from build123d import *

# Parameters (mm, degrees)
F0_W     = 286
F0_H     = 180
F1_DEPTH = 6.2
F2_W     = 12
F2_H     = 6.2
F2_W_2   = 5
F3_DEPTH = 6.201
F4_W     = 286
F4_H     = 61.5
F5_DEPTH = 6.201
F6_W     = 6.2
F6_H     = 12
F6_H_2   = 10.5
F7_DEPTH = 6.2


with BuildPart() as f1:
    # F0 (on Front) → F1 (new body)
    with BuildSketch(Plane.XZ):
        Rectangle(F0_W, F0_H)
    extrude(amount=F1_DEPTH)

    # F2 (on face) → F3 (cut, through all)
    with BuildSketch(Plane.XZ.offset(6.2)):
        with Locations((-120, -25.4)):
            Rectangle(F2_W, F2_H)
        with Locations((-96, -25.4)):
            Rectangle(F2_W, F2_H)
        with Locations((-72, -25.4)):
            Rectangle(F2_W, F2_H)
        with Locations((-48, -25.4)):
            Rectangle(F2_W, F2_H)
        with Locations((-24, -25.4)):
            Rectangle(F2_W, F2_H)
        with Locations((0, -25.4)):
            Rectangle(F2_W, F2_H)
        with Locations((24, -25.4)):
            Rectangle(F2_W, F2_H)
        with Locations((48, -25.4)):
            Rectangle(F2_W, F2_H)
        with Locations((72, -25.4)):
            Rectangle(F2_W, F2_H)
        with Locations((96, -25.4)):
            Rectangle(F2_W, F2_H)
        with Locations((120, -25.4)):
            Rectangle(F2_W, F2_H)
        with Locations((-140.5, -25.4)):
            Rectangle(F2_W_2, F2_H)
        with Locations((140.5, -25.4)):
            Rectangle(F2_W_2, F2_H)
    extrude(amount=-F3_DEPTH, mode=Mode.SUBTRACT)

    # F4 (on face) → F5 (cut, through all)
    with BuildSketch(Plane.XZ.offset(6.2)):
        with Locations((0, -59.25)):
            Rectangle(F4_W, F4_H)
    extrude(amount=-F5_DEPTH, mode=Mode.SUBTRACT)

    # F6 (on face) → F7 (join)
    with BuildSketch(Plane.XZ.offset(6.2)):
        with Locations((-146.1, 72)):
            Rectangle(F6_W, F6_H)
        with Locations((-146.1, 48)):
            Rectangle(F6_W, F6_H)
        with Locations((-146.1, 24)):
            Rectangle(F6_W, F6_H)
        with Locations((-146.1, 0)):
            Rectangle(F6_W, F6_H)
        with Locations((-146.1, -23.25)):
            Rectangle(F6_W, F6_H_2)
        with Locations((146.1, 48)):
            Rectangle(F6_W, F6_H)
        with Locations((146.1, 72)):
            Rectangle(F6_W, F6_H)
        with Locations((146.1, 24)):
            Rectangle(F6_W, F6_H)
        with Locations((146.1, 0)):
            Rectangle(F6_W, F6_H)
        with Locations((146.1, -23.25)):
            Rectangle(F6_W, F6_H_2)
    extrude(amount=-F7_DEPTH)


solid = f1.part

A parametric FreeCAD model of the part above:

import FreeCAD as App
import Part
import Sketcher

V = App.Vector

doc = App.newDocument("Part")
params = doc.addObject("Spreadsheet::Sheet", "Params")
for row, (alias, value) in enumerate([
    ("sketch1_width", "286 mm"),
    ("sketch1_height", "180 mm"),
    ("pad1_length", "6.2 mm"),
    ("sketch2_width", "12 mm"),
    ("sketch2_width2", "5 mm"),
    ("sketch2_height", "6.2 mm"),
    ("sketch3_width", "286 mm"),
    ("sketch3_height", "61.5 mm"),
    ("sketch4_height", "12 mm"),
    ("sketch4_width", "6.2 mm"),
    ("sketch4_height2", "10.5 mm"),
    ("pad2_length", "6.2 mm"),
], start=1):
    params.set(f"A{row}", alias)
    params.set(f"B{row}", "=" + value)
    params.setAlias(f"B{row}", alias)

body = doc.addObject("PartDesign::Body", "Body")

sketch1 = body.newObject("Sketcher::SketchObject", "Sketch")
sketch1.AttachmentSupport = (doc.getObject("XZ_Plane"), [""])
sketch1.MapMode = "FlatFace"
sketch1.addGeometry([
    Part.LineSegment(V(-143, 90, 0), V(-143, -90, 0)),
    Part.LineSegment(V(-143, -90, 0), V(143, -90, 0)),
    Part.LineSegment(V(143, -90, 0), V(143, 90, 0)),
    Part.LineSegment(V(143, 90, 0), V(-143, 90, 0)),
], False)
sketch1.addConstraint([
    Sketcher.Constraint("Coincident", 0, 2, 1, 1),
    Sketcher.Constraint("Coincident", 1, 2, 2, 1),
    Sketcher.Constraint("Coincident", 2, 2, 3, 1),
    Sketcher.Constraint("Coincident", 3, 2, 0, 1),
    Sketcher.Constraint("Vertical", 0),
    Sketcher.Constraint("Horizontal", 1),
    Sketcher.Constraint("Vertical", 2),
    Sketcher.Constraint("Horizontal", 3),
    Sketcher.Constraint("Symmetric", 0, 2, 2, 2, -1, 1),
    Sketcher.Constraint("DistanceX", 1, 1, 1, 2, 286.0),
    Sketcher.Constraint("DistanceY", 0, 2, 0, 1, 180.0),
])
sketch1.setExpression("Constraints[9]", "Params.sketch1_width")
sketch1.setExpression("Constraints[10]", "Params.sketch1_height")
pad1 = body.newObject("PartDesign::Pad", "Pad")
pad1.Profile = sketch1
pad1.setExpression("Length", "Params.pad1_length")

sketch2 = body.newObject("Sketcher::SketchObject", "Sketch001")
sketch2.AttachmentSupport = (doc.getObject("XZ_Plane"), [""])
sketch2.MapMode = "FlatFace"
sketch2.AttachmentOffset = App.Placement(V(0, 0, 6.2), App.Rotation())
sketch2.addGeometry([
    Part.LineSegment(V(-126, -22, 0), V(-126, -28, 0)),
    Part.LineSegment(V(-126, -28, 0), V(-114, -28, 0)),
    Part.LineSegment(V(-114, -28, 0), V(-114, -22, 0)),
    Part.LineSegment(V(-114, -22, 0), V(-126, -22, 0)),
    Part.LineSegment(V(-102, -22, 0), V(-102, -28, 0)),
    Part.LineSegment(V(-102, -28, 0), V(-90, -28, 0)),
    Part.LineSegment(V(-90, -28, 0), V(-90, -22, 0)),
    Part.LineSegment(V(-90, -22, 0), V(-102, -22, 0)),
    Part.LineSegment(V(-78, -22, 0), V(-78, -28, 0)),
    Part.LineSegment(V(-78, -28, 0), V(-66, -28, 0)),
    Part.LineSegment(V(-66, -28, 0), V(-66, -22, 0)),
    Part.LineSegment(V(-66, -22, 0), V(-78, -22, 0)),
    Part.LineSegment(V(-54, -22, 0), V(-54, -28, 0)),
    Part.LineSegment(V(-54, -28, 0), V(-42, -28, 0)),
    Part.LineSegment(V(-42, -28, 0), V(-42, -22, 0)),
    Part.LineSegment(V(-42, -22, 0), V(-54, -22, 0)),
    Part.LineSegment(V(-30, -22, 0), V(-30, -28, 0)),
    Part.LineSegment(V(-30, -28, 0), V(-18, -28, 0)),
    Part.LineSegment(V(-18, -28, 0), V(-18, -22, 0)),
    Part.LineSegment(V(-18, -22, 0), V(-30, -22, 0)),
    Part.LineSegment(V(-6, -22, 0), V(-6, -28, 0)),
    Part.LineSegment(V(-6, -28, 0), V(6, -28, 0)),
    Part.LineSegment(V(6, -28, 0), V(6, -22, 0)),
    Part.LineSegment(V(6, -22, 0), V(-6, -22, 0)),
    Part.LineSegment(V(18, -22, 0), V(18, -28, 0)),
    Part.LineSegment(V(18, -28, 0), V(30, -28, 0)),
    Part.LineSegment(V(30, -28, 0), V(30, -22, 0)),
    Part.LineSegment(V(30, -22, 0), V(18, -22, 0)),
    Part.LineSegment(V(42, -22, 0), V(42, -28, 0)),
    Part.LineSegment(V(42, -28, 0), V(54, -28, 0)),
    Part.LineSegment(V(54, -28, 0), V(54, -22, 0)),
    Part.LineSegment(V(54, -22, 0), V(42, -22, 0)),
    Part.LineSegment(V(66, -22, 0), V(66, -28, 0)),
    Part.LineSegment(V(66, -28, 0), V(78, -28, 0)),
    Part.LineSegment(V(78, -28, 0), V(78, -22, 0)),
    Part.LineSegment(V(78, -22, 0), V(66, -22, 0)),
    Part.LineSegment(V(90, -22, 0), V(90, -28, 0)),
    Part.LineSegment(V(90, -28, 0), V(102, -28, 0)),
    Part.LineSegment(V(102, -28, 0), V(102, -22, 0)),
    Part.LineSegment(V(102, -22, 0), V(90, -22, 0)),
    Part.LineSegment(V(114, -22, 0), V(114, -28, 0)),
    Part.LineSegment(V(114, -28, 0), V(126, -28, 0)),
    Part.LineSegment(V(126, -28, 0), V(126, -22, 0)),
    Part.LineSegment(V(126, -22, 0), V(114, -22, 0)),
    Part.LineSegment(V(-143, -22, 0), V(-143, -28, 0)),
    Part.LineSegment(V(-143, -28, 0), V(-138, -28, 0)),
    Part.LineSegment(V(-138, -28, 0), V(-138, -22, 0)),
    Part.LineSegment(V(-138, -22, 0), V(-143, -22, 0)),
    Part.LineSegment(V(138, -22, 0), V(138, -28, 0)),
    Part.LineSegment(V(138, -28, 0), V(143, -28, 0)),
    Part.LineSegment(V(143, -28, 0), V(143, -22, 0)),
    Part.LineSegment(V(143, -22, 0), V(138, -22, 0)),
], False)
sketch2.addConstraint([
    Sketcher.Constraint("Coincident", 0, 2, 1, 1),
    Sketcher.Constraint("Coincident", 1, 2, 2, 1),
    Sketcher.Constraint("Coincident", 2, 2, 3, 1),
    Sketcher.Constraint("Coincident", 3, 2, 0, 1),
    Sketcher.Constraint("Coincident", 4, 2, 5, 1),
    Sketcher.Constraint("Coincident", 5, 2, 6, 1),
    Sketcher.Constraint("Coincident", 6, 2, 7, 1),
    Sketcher.Constraint("Coincident", 7, 2, 4, 1),
    Sketcher.Constraint("Coincident", 8, 2, 9, 1),
    Sketcher.Constraint("Coincident", 9, 2, 10, 1),
    Sketcher.Constraint("Coincident", 10, 2, 11, 1),
    Sketcher.Constraint("Coincident", 11, 2, 8, 1),
    Sketcher.Constraint("Coincident", 12, 2, 13, 1),
    Sketcher.Constraint("Coincident", 13, 2, 14, 1),
    Sketcher.Constraint("Coincident", 14, 2, 15, 1),
    Sketcher.Constraint("Coincident", 15, 2, 12, 1),
    Sketcher.Constraint("Coincident", 16, 2, 17, 1),
    Sketcher.Constraint("Coincident", 17, 2, 18, 1),
    Sketcher.Constraint("Coincident", 18, 2, 19, 1),
    Sketcher.Constraint("Coincident", 19, 2, 16, 1),
    Sketcher.Constraint("Coincident", 20, 2, 21, 1),
    Sketcher.Constraint("Coincident", 21, 2, 22, 1),
    Sketcher.Constraint("Coincident", 22, 2, 23, 1),
    Sketcher.Constraint("Coincident", 23, 2, 20, 1),
    Sketcher.Constraint("Coincident", 24, 2, 25, 1),
    Sketcher.Constraint("Coincident", 25, 2, 26, 1),
    Sketcher.Constraint("Coincident", 26, 2, 27, 1),
    Sketcher.Constraint("Coincident", 27, 2, 24, 1),
    Sketcher.Constraint("Coincident", 28, 2, 29, 1),
    Sketcher.Constraint("Coincident", 29, 2, 30, 1),
    Sketcher.Constraint("Coincident", 30, 2, 31, 1),
    Sketcher.Constraint("Coincident", 31, 2, 28, 1),
    Sketcher.Constraint("Coincident", 32, 2, 33, 1),
    Sketcher.Constraint("Coincident", 33, 2, 34, 1),
    Sketcher.Constraint("Coincident", 34, 2, 35, 1),
    Sketcher.Constraint("Coincident", 35, 2, 32, 1),
    Sketcher.Constraint("Coincident", 36, 2, 37, 1),
    Sketcher.Constraint("Coincident", 37, 2, 38, 1),
    Sketcher.Constraint("Coincident", 38, 2, 39, 1),
    Sketcher.Constraint("Coincident", 39, 2, 36, 1),
    Sketcher.Constraint("Coincident", 40, 2, 41, 1),
    Sketcher.Constraint("Coincident", 41, 2, 42, 1),
    Sketcher.Constraint("Coincident", 42, 2, 43, 1),
    Sketcher.Constraint("Coincident", 43, 2, 40, 1),
    Sketcher.Constraint("Coincident", 44, 2, 45, 1),
    Sketcher.Constraint("Coincident", 45, 2, 46, 1),
    Sketcher.Constraint("Coincident", 46, 2, 47, 1),
    Sketcher.Constraint("Coincident", 47, 2, 44, 1),
    Sketcher.Constraint("Coincident", 48, 2, 49, 1),
    Sketcher.Constraint("Coincident", 49, 2, 50, 1),
    Sketcher.Constraint("Coincident", 50, 2, 51, 1),
    Sketcher.Constraint("Coincident", 51, 2, 48, 1),
    Sketcher.Constraint("Vertical", 0),
    Sketcher.Constraint("Horizontal", 1),
    Sketcher.Constraint("Vertical", 2),
    Sketcher.Constraint("Horizontal", 3),
    Sketcher.Constraint("Vertical", 4),
    Sketcher.Constraint("Horizontal", 5),
    Sketcher.Constraint("Vertical", 6),
    Sketcher.Constraint("Horizontal", 7),
    Sketcher.Constraint("Vertical", 8),
    Sketcher.Constraint("Horizontal", 9),
    Sketcher.Constraint("Vertical", 10),
    Sketcher.Constraint("Horizontal", 11),
    Sketcher.Constraint("Vertical", 12),
    Sketcher.Constraint("Horizontal", 13),
    Sketcher.Constraint("Vertical", 14),
    Sketcher.Constraint("Horizontal", 15),
    Sketcher.Constraint("Vertical", 16),
    Sketcher.Constraint("Horizontal", 17),
    Sketcher.Constraint("Vertical", 18),
    Sketcher.Constraint("Horizontal", 19),
    Sketcher.Constraint("Vertical", 20),
    Sketcher.Constraint("Horizontal", 21),
    Sketcher.Constraint("Vertical", 22),
    Sketcher.Constraint("Horizontal", 23),
    Sketcher.Constraint("Vertical", 24),
    Sketcher.Constraint("Horizontal", 25),
    Sketcher.Constraint("Vertical", 26),
    Sketcher.Constraint("Horizontal", 27),
    Sketcher.Constraint("Vertical", 28),
    Sketcher.Constraint("Horizontal", 29),
    Sketcher.Constraint("Vertical", 30),
    Sketcher.Constraint("Horizontal", 31),
    Sketcher.Constraint("Vertical", 32),
    Sketcher.Constraint("Horizontal", 33),
    Sketcher.Constraint("Vertical", 34),
    Sketcher.Constraint("Horizontal", 35),
    Sketcher.Constraint("Vertical", 36),
    Sketcher.Constraint("Horizontal", 37),
    Sketcher.Constraint("Vertical", 38),
    Sketcher.Constraint("Horizontal", 39),
    Sketcher.Constraint("Vertical", 40),
    Sketcher.Constraint("Horizontal", 41),
    Sketcher.Constraint("Vertical", 42),
    Sketcher.Constraint("Horizontal", 43),
    Sketcher.Constraint("Vertical", 44),
    Sketcher.Constraint("Horizontal", 45),
    Sketcher.Constraint("Vertical", 46),
    Sketcher.Constraint("Horizontal", 47),
    Sketcher.Constraint("Vertical", 48),
    Sketcher.Constraint("Horizontal", 49),
    Sketcher.Constraint("Vertical", 50),
    Sketcher.Constraint("Horizontal", 51),
    Sketcher.Constraint("Symmetric", 17, 2, 24, 2, -2),
    Sketcher.Constraint("Symmetric", 19, 2, 26, 2, -2),
    Sketcher.Constraint("Symmetric", 13, 2, 28, 2, -2),
    Sketcher.Constraint("Symmetric", 15, 2, 30, 2, -2),
    Sketcher.Constraint("Symmetric", 9, 2, 32, 2, -2),
    Sketcher.Constraint("Symmetric", 11, 2, 34, 2, -2),
    Sketcher.Constraint("Symmetric", 5, 2, 36, 2, -2),
    Sketcher.Constraint("Symmetric", 7, 2, 38, 2, -2),
    Sketcher.Constraint("Symmetric", 1, 2, 40, 2, -2),
    Sketcher.Constraint("Symmetric", 3, 2, 42, 2, -2),
    Sketcher.Constraint("Symmetric", 45, 2, 48, 2, -2),
    Sketcher.Constraint("Symmetric", 47, 2, 50, 2, -2),
    Sketcher.Constraint("Horizontal", 1, 2, 4, 2),
    Sketcher.Constraint("Horizontal", 3, 2, 6, 2),
    Sketcher.Constraint("Horizontal", 5, 2, 8, 2),
    Sketcher.Constraint("Horizontal", 7, 2, 10, 2),
    Sketcher.Constraint("Horizontal", 9, 2, 12, 2),
    Sketcher.Constraint("Horizontal", 11, 2, 14, 2),
    Sketcher.Constraint("Horizontal", 13, 2, 16, 2),
    Sketcher.Constraint("Horizontal", 15, 2, 18, 2),
    Sketcher.Constraint("Horizontal", 17, 2, 20, 2),
    Sketcher.Constraint("Horizontal", 19, 2, 22, 2),
    Sketcher.Constraint("Horizontal", 41, 2, 44, 2),
    Sketcher.Constraint("Horizontal", 43, 2, 46, 2),
    Sketcher.Constraint("Equal", 3, 5),
    Sketcher.Constraint("Equal", 7, 9),
    Sketcher.Constraint("Equal", 11, 13),
    Sketcher.Constraint("Equal", 15, 17),
    Sketcher.Constraint("Equal", 19, 21),
    Sketcher.Constraint("DistanceX", 1, 1, 1, 2, 12.0),
    Sketcher.Constraint("DistanceX", 45, 1, 45, 2, 5.0),
    Sketcher.Constraint("DistanceY", 0, 2, 0, 1, 6.2),
    Sketcher.Constraint("DistanceX", 0, 2, -1, 1, 126.0),
    Sketcher.Constraint("DistanceX", 4, 2, -1, 1, 102.0),
    Sketcher.Constraint("DistanceX", 8, 2, -1, 1, 78.0),
    Sketcher.Constraint("DistanceX", 12, 2, -1, 1, 54.0),
    Sketcher.Constraint("DistanceX", 16, 2, -1, 1, 30.0),
    Sketcher.Constraint("DistanceX", 20, 2, -1, 1, 6.0),
    Sketcher.Constraint("DistanceX", 44, 2, -1, 1, 143.0),
    Sketcher.Constraint("DistanceY", 0, 2, -1, 1, 28.5),
])
sketch2.setExpression("Constraints[133]", "Params.sketch2_width")
sketch2.setExpression("Constraints[134]", "Params.sketch2_width2")
sketch2.setExpression("Constraints[135]", "Params.sketch2_height")
pocket1 = body.newObject("PartDesign::Pocket", "Pocket")
pocket1.Profile = sketch2
pocket1.Type = "ThroughAll"

sketch3 = body.newObject("Sketcher::SketchObject", "Sketch002")
sketch3.AttachmentSupport = (doc.getObject("XZ_Plane"), [""])
sketch3.MapMode = "FlatFace"
sketch3.AttachmentOffset = App.Placement(V(0, 0, 6.2), App.Rotation())
sketch3.addGeometry([
    Part.LineSegment(V(-143, -28, 0), V(-143, -90, 0)),
    Part.LineSegment(V(-143, -90, 0), V(143, -90, 0)),
    Part.LineSegment(V(143, -90, 0), V(143, -28, 0)),
    Part.LineSegment(V(143, -28, 0), V(-143, -28, 0)),
], False)
sketch3.addConstraint([
    Sketcher.Constraint("Coincident", 0, 2, 1, 1),
    Sketcher.Constraint("Coincident", 1, 2, 2, 1),
    Sketcher.Constraint("Coincident", 2, 2, 3, 1),
    Sketcher.Constraint("Coincident", 3, 2, 0, 1),
    Sketcher.Constraint("Vertical", 0),
    Sketcher.Constraint("Horizontal", 1),
    Sketcher.Constraint("Vertical", 2),
    Sketcher.Constraint("Horizontal", 3),
    Sketcher.Constraint("DistanceX", 1, 1, 1, 2, 286.0),
    Sketcher.Constraint("DistanceY", 0, 2, 0, 1, 61.5),
    Sketcher.Constraint("DistanceX", 0, 2, -1, 1, 143.0),
    Sketcher.Constraint("DistanceY", 0, 2, -1, 1, 90.0),
])
sketch3.setExpression("Constraints[8]", "Params.sketch3_width")
sketch3.setExpression("Constraints[9]", "Params.sketch3_height")
pocket2 = body.newObject("PartDesign::Pocket", "Pocket001")
pocket2.Profile = sketch3
pocket2.Type = "ThroughAll"

sketch4 = body.newObject("Sketcher::SketchObject", "Sketch003")
sketch4.AttachmentSupport = (doc.getObject("XZ_Plane"), [""])
sketch4.MapMode = "FlatFace"
sketch4.AttachmentOffset = App.Placement(V(0, 0, 6.2), App.Rotation())
sketch4.addGeometry([
    Part.LineSegment(V(-149, 78, 0), V(-149, 66, 0)),
    Part.LineSegment(V(-149, 66, 0), V(-143, 66, 0)),
    Part.LineSegment(V(-143, 66, 0), V(-143, 78, 0)),
    Part.LineSegment(V(-143, 78, 0), V(-149, 78, 0)),
    Part.LineSegment(V(-149, 54, 0), V(-149, 42, 0)),
    Part.LineSegment(V(-149, 42, 0), V(-143, 42, 0)),
    Part.LineSegment(V(-143, 42, 0), V(-143, 54, 0)),
    Part.LineSegment(V(-143, 54, 0), V(-149, 54, 0)),
    Part.LineSegment(V(-149, 30, 0), V(-149, 18, 0)),
    Part.LineSegment(V(-149, 18, 0), V(-143, 18, 0)),
    Part.LineSegment(V(-143, 18, 0), V(-143, 30, 0)),
    Part.LineSegment(V(-143, 30, 0), V(-149, 30, 0)),
    Part.LineSegment(V(-149, 6, 0), V(-149, -6, 0)),
    Part.LineSegment(V(-149, -6, 0), V(-143, -6, 0)),
    Part.LineSegment(V(-143, -6, 0), V(-143, 6, 0)),
    Part.LineSegment(V(-143, 6, 0), V(-149, 6, 0)),
    Part.LineSegment(V(-149, -18, 0), V(-149, -28, 0)),
    Part.LineSegment(V(-149, -28, 0), V(-143, -28, 0)),
    Part.LineSegment(V(-143, -28, 0), V(-143, -18, 0)),
    Part.LineSegment(V(-143, -18, 0), V(-149, -18, 0)),
    Part.LineSegment(V(143, 54, 0), V(143, 42, 0)),
    Part.LineSegment(V(143, 42, 0), V(149, 42, 0)),
    Part.LineSegment(V(149, 42, 0), V(149, 54, 0)),
    Part.LineSegment(V(149, 54, 0), V(143, 54, 0)),
    Part.LineSegment(V(143, 78, 0), V(143, 66, 0)),
    Part.LineSegment(V(143, 66, 0), V(149, 66, 0)),
    Part.LineSegment(V(149, 66, 0), V(149, 78, 0)),
    Part.LineSegment(V(149, 78, 0), V(143, 78, 0)),
    Part.LineSegment(V(143, 30, 0), V(143, 18, 0)),
    Part.LineSegment(V(143, 18, 0), V(149, 18, 0)),
    Part.LineSegment(V(149, 18, 0), V(149, 30, 0)),
    Part.LineSegment(V(149, 30, 0), V(143, 30, 0)),
    Part.LineSegment(V(143, 6, 0), V(143, -6, 0)),
    Part.LineSegment(V(143, -6, 0), V(149, -6, 0)),
    Part.LineSegment(V(149, -6, 0), V(149, 6, 0)),
    Part.LineSegment(V(149, 6, 0), V(143, 6, 0)),
    Part.LineSegment(V(143, -18, 0), V(143, -28, 0)),
    Part.LineSegment(V(143, -28, 0), V(149, -28, 0)),
    Part.LineSegment(V(149, -28, 0), V(149, -18, 0)),
    Part.LineSegment(V(149, -18, 0), V(143, -18, 0)),
], False)
sketch4.addConstraint([
    Sketcher.Constraint("Coincident", 0, 2, 1, 1),
    Sketcher.Constraint("Coincident", 1, 2, 2, 1),
    Sketcher.Constraint("Coincident", 2, 2, 3, 1),
    Sketcher.Constraint("Coincident", 3, 2, 0, 1),
    Sketcher.Constraint("Coincident", 4, 2, 5, 1),
    Sketcher.Constraint("Coincident", 5, 2, 6, 1),
    Sketcher.Constraint("Coincident", 6, 2, 7, 1),
    Sketcher.Constraint("Coincident", 7, 2, 4, 1),
    Sketcher.Constraint("Coincident", 8, 2, 9, 1),
    Sketcher.Constraint("Coincident", 9, 2, 10, 1),
    Sketcher.Constraint("Coincident", 10, 2, 11, 1),
    Sketcher.Constraint("Coincident", 11, 2, 8, 1),
    Sketcher.Constraint("Coincident", 12, 2, 13, 1),
    Sketcher.Constraint("Coincident", 13, 2, 14, 1),
    Sketcher.Constraint("Coincident", 14, 2, 15, 1),
    Sketcher.Constraint("Coincident", 15, 2, 12, 1),
    Sketcher.Constraint("Coincident", 16, 2, 17, 1),
    Sketcher.Constraint("Coincident", 17, 2, 18, 1),
    Sketcher.Constraint("Coincident", 18, 2, 19, 1),
    Sketcher.Constraint("Coincident", 19, 2, 16, 1),
    Sketcher.Constraint("Coincident", 20, 2, 21, 1),
    Sketcher.Constraint("Coincident", 21, 2, 22, 1),
    Sketcher.Constraint("Coincident", 22, 2, 23, 1),
    Sketcher.Constraint("Coincident", 23, 2, 20, 1),
    Sketcher.Constraint("Coincident", 24, 2, 25, 1),
    Sketcher.Constraint("Coincident", 25, 2, 26, 1),
    Sketcher.Constraint("Coincident", 26, 2, 27, 1),
    Sketcher.Constraint("Coincident", 27, 2, 24, 1),
    Sketcher.Constraint("Coincident", 28, 2, 29, 1),
    Sketcher.Constraint("Coincident", 29, 2, 30, 1),
    Sketcher.Constraint("Coincident", 30, 2, 31, 1),
    Sketcher.Constraint("Coincident", 31, 2, 28, 1),
    Sketcher.Constraint("Coincident", 32, 2, 33, 1),
    Sketcher.Constraint("Coincident", 33, 2, 34, 1),
    Sketcher.Constraint("Coincident", 34, 2, 35, 1),
    Sketcher.Constraint("Coincident", 35, 2, 32, 1),
    Sketcher.Constraint("Coincident", 36, 2, 37, 1),
    Sketcher.Constraint("Coincident", 37, 2, 38, 1),
    Sketcher.Constraint("Coincident", 38, 2, 39, 1),
    Sketcher.Constraint("Coincident", 39, 2, 36, 1),
    Sketcher.Constraint("Vertical", 0),
    Sketcher.Constraint("Horizontal", 1),
    Sketcher.Constraint("Vertical", 2),
    Sketcher.Constraint("Horizontal", 3),
    Sketcher.Constraint("Vertical", 4),
    Sketcher.Constraint("Horizontal", 5),
    Sketcher.Constraint("Vertical", 6),
    Sketcher.Constraint("Horizontal", 7),
    Sketcher.Constraint("Vertical", 8),
    Sketcher.Constraint("Horizontal", 9),
    Sketcher.Constraint("Vertical", 10),
    Sketcher.Constraint("Horizontal", 11),
    Sketcher.Constraint("Vertical", 12),
    Sketcher.Constraint("Horizontal", 13),
    Sketcher.Constraint("Vertical", 14),
    Sketcher.Constraint("Horizontal", 15),
    Sketcher.Constraint("Vertical", 16),
    Sketcher.Constraint("Horizontal", 17),
    Sketcher.Constraint("Vertical", 18),
    Sketcher.Constraint("Horizontal", 19),
    Sketcher.Constraint("Vertical", 20),
    Sketcher.Constraint("Horizontal", 21),
    Sketcher.Constraint("Vertical", 22),
    Sketcher.Constraint("Horizontal", 23),
    Sketcher.Constraint("Vertical", 24),
    Sketcher.Constraint("Horizontal", 25),
    Sketcher.Constraint("Vertical", 26),
    Sketcher.Constraint("Horizontal", 27),
    Sketcher.Constraint("Vertical", 28),
    Sketcher.Constraint("Horizontal", 29),
    Sketcher.Constraint("Vertical", 30),
    Sketcher.Constraint("Horizontal", 31),
    Sketcher.Constraint("Vertical", 32),
    Sketcher.Constraint("Horizontal", 33),
    Sketcher.Constraint("Vertical", 34),
    Sketcher.Constraint("Horizontal", 35),
    Sketcher.Constraint("Vertical", 36),
    Sketcher.Constraint("Horizontal", 37),
    Sketcher.Constraint("Vertical", 38),
    Sketcher.Constraint("Horizontal", 39),
    Sketcher.Constraint("Symmetric", 18, 2, 28, 2, -1, 1),
    Sketcher.Constraint("Symmetric", 14, 2, 32, 2, -1, 1),
    Sketcher.Constraint("Symmetric", 12, 2, 34, 2, -1, 1),
    Sketcher.Constraint("Symmetric", 8, 2, 38, 2, -1, 1),
    Sketcher.Constraint("Symmetric", 5, 2, 20, 2, -2),
    Sketcher.Constraint("Symmetric", 7, 2, 22, 2, -2),
    Sketcher.Constraint("Symmetric", 1, 2, 24, 2, -2),
    Sketcher.Constraint("Symmetric", 3, 2, 26, 2, -2),
    Sketcher.Constraint("Symmetric", 9, 2, 28, 2, -2),
    Sketcher.Constraint("Symmetric", 11, 2, 30, 2, -2),
    Sketcher.Constraint("Symmetric", 17, 2, 36, 2, -2),
    Sketcher.Constraint("Horizontal", 13, 2, 32, 2),
    Sketcher.Constraint("Vertical", 3, 2, 4, 2),
    Sketcher.Constraint("Vertical", 2, 2, 5, 2),
    Sketcher.Constraint("Vertical", 7, 2, 8, 2),
    Sketcher.Constraint("Vertical", 6, 2, 9, 2),
    Sketcher.Constraint("Vertical", 11, 2, 12, 2),
    Sketcher.Constraint("Vertical", 10, 2, 13, 2),
    Sketcher.Constraint("Vertical", 15, 2, 16, 2),
    Sketcher.Constraint("Equal", 2, 4),
    Sketcher.Constraint("Equal", 6, 8),
    Sketcher.Constraint("Equal", 10, 12),
    Sketcher.Constraint("DistanceY", 0, 2, 0, 1, 12.0),
    Sketcher.Constraint("DistanceX", 1, 1, 1, 2, 6.2),
    Sketcher.Constraint("DistanceY", 16, 2, 16, 1, 10.5),
    Sketcher.Constraint("DistanceY", -1, 1, 0, 2, 66.0),
    Sketcher.Constraint("DistanceX", 1, 2, -1, 1, 143.0),
    Sketcher.Constraint("DistanceY", -1, 1, 4, 2, 42.0),
    Sketcher.Constraint("DistanceY", -1, 1, 8, 2, 18.0),
])
sketch4.setExpression("Constraints[102]", "Params.sketch4_height")
sketch4.setExpression("Constraints[103]", "Params.sketch4_width")
sketch4.setExpression("Constraints[104]", "Params.sketch4_height2")
pad2 = body.newObject("PartDesign::Pad", "Pad001")
pad2.Profile = sketch4
pad2.setExpression("Length", "Params.pad2_length")
pad2.Reversed = True

doc.recompute()
